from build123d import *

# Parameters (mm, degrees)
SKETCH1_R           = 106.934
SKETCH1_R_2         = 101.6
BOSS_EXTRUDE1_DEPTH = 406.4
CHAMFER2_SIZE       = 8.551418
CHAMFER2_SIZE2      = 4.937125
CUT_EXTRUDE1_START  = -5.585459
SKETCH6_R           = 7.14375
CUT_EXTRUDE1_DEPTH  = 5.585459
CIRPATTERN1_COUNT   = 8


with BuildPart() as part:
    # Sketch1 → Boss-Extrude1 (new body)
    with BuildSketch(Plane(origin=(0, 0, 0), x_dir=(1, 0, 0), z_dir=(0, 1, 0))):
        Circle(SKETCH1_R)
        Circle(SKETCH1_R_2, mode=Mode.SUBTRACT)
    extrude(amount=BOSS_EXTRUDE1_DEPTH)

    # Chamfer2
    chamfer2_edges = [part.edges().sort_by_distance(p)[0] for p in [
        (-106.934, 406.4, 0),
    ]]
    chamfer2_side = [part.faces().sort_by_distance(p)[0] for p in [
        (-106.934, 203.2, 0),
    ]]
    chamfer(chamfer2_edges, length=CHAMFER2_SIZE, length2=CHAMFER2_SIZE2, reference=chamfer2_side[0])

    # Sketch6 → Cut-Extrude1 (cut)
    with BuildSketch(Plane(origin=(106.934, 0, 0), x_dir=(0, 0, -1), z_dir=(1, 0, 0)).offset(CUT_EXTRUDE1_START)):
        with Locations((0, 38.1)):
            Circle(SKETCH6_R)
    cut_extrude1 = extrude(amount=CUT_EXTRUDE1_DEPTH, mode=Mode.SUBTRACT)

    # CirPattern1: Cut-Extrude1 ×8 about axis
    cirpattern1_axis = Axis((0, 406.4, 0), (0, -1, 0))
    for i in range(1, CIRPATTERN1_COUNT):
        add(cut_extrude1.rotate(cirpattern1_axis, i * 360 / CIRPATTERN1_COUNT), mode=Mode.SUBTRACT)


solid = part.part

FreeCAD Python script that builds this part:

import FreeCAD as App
import Part
import Sketcher

V = App.Vector
Q = App.Units.Quantity


def edges_at(feature, points):
    """Names of the edges that pass closest to the given points."""
    edges = feature.Shape.Edges
    near = lambda p: min(range(len(edges)), key=lambda i: edges[i].distToShape(Part.Vertex(*p))[0])
    return sorted({f"Edge{near(p) + 1}" for p in points})

doc = App.newDocument("Part")
body = doc.addObject("PartDesign::Body", "Body")

sketch1 = doc.addObject("Sketcher::SketchObject", "Sketch")
body.addObject(sketch1)
sketch1.AttachmentSupport = (doc.XZ_Plane, [""])
sketch1.MapMode = "FlatFace"
sketch1.addGeometry([
    Part.Circle(V(0, 0, 0), V(0, 0, 1), 107),
    Part.Circle(V(0, 0, 0), V(0, 0, 1), 102),
], False)
sketch1.addConstraint([
    Sketcher.Constraint("Coincident", 0, 3, -1, 1),
    Sketcher.Constraint("Coincident", 1, 3, -1, 1),
    Sketcher.Constraint("Diameter", 1, Q("8 in")),
    Sketcher.Constraint("Diameter", 0, Q("8.42 in")),
])
pad1 = doc.addObject("PartDesign::Pad", "Pad")
body.addObject(pad1)
pad1.Profile = sketch1
pad1.Length = Q("16 in")
pad1.Reversed = True
doc.recompute()

chamfer = doc.addObject("PartDesign::Chamfer", "Chamfer")
body.addObject(chamfer)
chamfer.Base = (pad1, edges_at(pad1, [(-106.934, 406.4, 0)]))
chamfer.ChamferType = "Two distances"
chamfer.Size = 8.551418
chamfer.Size2 = 4.937125

sketch2 = doc.addObject("Sketcher::SketchObject", "Sketch001")
body.addObject(sketch2)
sketch2.AttachmentSupport = (doc.YZ_Plane, [""])
sketch2.MapMode = "FlatFace"
sketch2.AttachmentOffset = App.Placement(V(0, 0, 3.9901 * 25.4), App.Rotation())
sketch2.addGeometry(Part.Circle(V(38, 0, 0), V(0, 0, 1), 7), False)
sketch2.addConstraint([
    Sketcher.Constraint("PointOnObject", 0, 3, -1),
    Sketcher.Constraint("Diameter", 0, Q("0.5625 in")),
    Sketcher.Constraint("DistanceX", -1, 1, 0, 3, Q("1.5 in")),
])
pocket1 = doc.addObject("PartDesign::Pocket", "Pocket")
body.addObject(pocket1)
pocket1.Profile = sketch2
pocket1.Length = Q("0.2199 in")
pocket1.Reversed = True
doc.recompute()

polarpattern = doc.addObject("PartDesign::PolarPattern", "PolarPattern")
body.addObject(polarpattern)
polarpattern.Originals = [pocket1]
polarpattern.Axis = (doc.Y_Axis, [""])
polarpattern.Angle = 360
polarpattern.Occurrences = 8
body.Tip = polarpattern

doc.recompute()
